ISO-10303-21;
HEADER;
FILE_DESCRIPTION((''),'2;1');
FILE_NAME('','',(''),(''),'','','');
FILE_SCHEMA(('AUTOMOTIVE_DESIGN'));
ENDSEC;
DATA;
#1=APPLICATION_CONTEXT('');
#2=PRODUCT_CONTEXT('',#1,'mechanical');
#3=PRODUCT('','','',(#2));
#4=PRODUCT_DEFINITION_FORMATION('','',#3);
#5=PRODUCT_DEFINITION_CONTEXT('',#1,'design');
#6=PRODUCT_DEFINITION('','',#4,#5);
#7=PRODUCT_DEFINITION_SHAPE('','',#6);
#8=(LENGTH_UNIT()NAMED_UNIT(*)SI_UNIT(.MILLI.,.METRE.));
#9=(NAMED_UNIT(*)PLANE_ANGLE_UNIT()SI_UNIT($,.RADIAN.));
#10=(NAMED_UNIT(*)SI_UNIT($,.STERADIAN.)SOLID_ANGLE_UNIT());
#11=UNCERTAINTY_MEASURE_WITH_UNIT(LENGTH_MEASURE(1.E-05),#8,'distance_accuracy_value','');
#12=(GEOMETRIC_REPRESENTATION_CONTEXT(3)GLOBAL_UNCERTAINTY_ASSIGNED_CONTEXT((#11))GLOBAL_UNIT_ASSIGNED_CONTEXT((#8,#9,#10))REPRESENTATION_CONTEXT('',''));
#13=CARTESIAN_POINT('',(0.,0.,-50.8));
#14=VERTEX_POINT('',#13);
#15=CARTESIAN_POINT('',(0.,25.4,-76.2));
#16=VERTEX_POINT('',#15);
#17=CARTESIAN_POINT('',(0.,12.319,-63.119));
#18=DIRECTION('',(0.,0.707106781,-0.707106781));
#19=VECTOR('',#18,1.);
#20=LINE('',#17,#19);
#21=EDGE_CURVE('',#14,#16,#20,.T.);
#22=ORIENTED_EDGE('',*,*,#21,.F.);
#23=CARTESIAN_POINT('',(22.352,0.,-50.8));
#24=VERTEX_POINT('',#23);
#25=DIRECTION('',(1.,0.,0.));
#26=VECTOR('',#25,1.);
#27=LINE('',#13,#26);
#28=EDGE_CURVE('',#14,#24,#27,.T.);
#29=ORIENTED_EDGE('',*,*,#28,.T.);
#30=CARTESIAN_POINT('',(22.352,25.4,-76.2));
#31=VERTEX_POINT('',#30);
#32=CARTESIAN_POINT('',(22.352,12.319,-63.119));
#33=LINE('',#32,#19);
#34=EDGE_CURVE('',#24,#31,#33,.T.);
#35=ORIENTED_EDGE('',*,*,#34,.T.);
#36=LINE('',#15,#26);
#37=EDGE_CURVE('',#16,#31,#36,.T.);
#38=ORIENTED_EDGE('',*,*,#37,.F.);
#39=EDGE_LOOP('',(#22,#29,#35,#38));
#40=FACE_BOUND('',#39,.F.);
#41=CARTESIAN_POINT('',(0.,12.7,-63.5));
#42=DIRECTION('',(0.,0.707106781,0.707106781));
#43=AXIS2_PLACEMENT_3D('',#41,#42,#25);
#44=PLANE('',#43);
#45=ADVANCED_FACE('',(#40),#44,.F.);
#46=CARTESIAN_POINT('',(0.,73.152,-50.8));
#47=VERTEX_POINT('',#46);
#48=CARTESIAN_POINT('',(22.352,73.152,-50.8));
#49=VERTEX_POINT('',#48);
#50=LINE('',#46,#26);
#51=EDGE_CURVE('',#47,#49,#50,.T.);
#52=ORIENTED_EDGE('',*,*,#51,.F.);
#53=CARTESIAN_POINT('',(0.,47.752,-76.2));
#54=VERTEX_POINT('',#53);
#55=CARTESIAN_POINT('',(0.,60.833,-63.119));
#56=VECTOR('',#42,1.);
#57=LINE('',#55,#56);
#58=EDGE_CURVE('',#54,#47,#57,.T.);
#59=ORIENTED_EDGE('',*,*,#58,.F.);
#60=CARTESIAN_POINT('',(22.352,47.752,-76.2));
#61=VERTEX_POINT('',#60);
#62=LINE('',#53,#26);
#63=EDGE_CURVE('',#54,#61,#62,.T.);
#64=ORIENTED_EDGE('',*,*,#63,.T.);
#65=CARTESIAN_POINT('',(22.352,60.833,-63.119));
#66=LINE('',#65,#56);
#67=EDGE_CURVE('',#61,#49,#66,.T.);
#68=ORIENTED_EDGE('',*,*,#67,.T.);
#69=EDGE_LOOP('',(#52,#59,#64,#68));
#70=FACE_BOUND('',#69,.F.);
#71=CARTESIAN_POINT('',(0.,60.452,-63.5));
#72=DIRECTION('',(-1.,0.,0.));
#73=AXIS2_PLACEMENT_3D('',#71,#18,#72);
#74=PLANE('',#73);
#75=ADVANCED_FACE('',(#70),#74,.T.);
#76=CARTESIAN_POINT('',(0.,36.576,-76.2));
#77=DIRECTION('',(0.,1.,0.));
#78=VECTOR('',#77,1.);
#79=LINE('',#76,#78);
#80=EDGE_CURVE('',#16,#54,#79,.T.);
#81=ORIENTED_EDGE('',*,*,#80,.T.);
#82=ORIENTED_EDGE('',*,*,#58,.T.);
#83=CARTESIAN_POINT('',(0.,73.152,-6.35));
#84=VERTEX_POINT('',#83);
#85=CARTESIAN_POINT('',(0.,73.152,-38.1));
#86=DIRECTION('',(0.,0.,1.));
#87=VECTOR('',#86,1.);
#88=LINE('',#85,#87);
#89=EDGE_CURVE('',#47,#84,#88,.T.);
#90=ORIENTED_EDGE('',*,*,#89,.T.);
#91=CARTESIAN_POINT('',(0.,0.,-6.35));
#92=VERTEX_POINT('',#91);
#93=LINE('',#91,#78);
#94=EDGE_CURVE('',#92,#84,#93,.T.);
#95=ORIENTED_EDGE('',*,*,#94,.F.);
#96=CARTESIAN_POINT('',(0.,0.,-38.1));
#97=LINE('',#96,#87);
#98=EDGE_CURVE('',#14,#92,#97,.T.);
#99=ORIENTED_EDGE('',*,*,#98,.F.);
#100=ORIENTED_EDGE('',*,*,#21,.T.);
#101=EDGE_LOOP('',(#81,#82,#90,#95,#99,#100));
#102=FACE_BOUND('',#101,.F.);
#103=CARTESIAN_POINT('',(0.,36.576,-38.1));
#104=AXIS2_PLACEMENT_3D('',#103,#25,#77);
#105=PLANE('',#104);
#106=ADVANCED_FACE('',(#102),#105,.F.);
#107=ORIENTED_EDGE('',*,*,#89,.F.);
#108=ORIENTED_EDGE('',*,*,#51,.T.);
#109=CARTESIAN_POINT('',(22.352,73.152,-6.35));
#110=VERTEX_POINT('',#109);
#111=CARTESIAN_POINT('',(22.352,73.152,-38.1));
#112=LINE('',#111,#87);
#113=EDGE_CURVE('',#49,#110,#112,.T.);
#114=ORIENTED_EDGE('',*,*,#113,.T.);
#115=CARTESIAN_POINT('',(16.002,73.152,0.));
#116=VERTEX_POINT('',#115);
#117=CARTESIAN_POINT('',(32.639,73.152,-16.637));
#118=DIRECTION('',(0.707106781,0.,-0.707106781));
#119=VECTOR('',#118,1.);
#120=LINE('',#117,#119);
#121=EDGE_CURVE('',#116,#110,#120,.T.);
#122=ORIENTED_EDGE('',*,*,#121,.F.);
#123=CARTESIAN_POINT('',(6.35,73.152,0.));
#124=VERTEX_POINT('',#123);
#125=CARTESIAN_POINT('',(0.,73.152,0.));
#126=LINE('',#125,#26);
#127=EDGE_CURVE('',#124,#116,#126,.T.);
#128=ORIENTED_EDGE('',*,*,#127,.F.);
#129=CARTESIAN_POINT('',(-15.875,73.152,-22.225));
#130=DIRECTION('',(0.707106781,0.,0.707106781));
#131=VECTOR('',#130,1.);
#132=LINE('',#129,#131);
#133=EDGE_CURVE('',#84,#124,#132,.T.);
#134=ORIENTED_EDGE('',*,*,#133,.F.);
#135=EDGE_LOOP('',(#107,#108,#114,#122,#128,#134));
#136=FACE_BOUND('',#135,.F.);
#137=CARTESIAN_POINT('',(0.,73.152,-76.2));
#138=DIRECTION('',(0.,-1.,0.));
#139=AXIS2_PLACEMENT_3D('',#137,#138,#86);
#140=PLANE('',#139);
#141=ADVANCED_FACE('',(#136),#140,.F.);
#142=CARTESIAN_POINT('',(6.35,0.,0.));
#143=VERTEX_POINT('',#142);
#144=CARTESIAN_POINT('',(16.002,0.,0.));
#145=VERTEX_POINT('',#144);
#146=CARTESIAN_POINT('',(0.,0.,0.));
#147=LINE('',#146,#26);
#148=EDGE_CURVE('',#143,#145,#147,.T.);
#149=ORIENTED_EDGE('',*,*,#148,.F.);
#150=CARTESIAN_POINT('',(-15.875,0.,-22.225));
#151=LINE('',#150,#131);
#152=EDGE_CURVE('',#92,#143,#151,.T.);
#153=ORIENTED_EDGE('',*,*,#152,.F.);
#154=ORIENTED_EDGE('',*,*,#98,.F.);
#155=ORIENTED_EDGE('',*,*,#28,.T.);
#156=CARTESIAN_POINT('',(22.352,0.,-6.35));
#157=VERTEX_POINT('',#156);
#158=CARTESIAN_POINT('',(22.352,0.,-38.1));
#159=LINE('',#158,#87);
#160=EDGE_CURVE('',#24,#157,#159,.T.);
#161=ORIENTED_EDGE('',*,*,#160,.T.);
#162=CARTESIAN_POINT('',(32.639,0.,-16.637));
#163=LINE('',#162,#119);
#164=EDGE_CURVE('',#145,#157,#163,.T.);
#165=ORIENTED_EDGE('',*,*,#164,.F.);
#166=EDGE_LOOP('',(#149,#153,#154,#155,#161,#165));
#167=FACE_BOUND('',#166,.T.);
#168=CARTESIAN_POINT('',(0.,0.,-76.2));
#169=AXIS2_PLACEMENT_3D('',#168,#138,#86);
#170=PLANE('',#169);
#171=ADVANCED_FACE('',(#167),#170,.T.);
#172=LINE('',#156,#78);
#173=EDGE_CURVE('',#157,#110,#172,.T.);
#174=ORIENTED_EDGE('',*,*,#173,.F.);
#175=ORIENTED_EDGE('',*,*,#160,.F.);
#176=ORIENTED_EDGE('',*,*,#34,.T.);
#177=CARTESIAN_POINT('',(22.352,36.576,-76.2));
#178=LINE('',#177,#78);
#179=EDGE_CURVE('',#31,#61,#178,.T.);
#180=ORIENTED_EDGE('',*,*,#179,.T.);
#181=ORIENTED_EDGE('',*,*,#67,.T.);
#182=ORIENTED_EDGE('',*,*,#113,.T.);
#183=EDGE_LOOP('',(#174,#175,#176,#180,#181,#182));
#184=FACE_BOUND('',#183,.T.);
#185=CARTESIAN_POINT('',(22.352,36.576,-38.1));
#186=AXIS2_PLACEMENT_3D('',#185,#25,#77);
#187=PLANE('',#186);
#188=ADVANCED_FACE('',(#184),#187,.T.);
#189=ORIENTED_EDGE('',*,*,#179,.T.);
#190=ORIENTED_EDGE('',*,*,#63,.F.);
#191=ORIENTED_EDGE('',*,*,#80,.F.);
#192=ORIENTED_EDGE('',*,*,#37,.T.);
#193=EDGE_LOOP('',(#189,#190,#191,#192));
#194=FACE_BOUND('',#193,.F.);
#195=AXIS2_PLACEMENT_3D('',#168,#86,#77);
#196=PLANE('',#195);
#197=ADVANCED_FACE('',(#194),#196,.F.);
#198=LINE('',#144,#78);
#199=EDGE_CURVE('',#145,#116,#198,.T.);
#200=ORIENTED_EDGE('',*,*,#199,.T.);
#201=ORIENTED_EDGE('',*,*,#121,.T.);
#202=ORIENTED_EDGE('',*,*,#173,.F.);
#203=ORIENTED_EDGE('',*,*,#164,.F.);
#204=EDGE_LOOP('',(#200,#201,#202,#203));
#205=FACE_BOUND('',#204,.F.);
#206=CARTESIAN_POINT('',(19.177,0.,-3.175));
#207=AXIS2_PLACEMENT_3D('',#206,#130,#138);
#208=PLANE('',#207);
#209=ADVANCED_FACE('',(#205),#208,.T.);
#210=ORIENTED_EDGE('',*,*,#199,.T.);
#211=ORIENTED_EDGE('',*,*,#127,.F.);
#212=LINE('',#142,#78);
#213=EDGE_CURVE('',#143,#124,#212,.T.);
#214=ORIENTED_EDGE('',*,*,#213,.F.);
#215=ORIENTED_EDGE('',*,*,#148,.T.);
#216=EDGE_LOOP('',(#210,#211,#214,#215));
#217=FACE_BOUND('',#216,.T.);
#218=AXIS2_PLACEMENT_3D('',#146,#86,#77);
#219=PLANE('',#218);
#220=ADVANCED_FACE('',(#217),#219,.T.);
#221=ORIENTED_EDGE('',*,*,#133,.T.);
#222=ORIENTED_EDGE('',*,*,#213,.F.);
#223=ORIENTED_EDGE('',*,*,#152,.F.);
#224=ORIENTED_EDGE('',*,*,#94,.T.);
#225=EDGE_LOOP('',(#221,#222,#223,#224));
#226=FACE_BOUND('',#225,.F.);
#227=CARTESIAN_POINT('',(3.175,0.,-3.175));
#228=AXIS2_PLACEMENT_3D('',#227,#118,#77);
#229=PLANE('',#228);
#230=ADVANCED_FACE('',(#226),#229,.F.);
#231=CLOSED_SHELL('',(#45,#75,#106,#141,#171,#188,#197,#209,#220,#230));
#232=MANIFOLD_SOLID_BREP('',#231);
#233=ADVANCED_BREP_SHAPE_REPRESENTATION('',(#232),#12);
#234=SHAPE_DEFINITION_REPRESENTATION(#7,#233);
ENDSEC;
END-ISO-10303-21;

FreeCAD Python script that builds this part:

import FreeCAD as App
import Part
import Sketcher

V = App.Vector
Q = App.Units.Quantity


def edges_at(feature, points):
    """Names of the edges that pass closest to the given points."""
    edges = feature.Shape.Edges
    near = lambda p: min(range(len(edges)), key=lambda i: edges[i].distToShape(Part.Vertex(*p))[0])
    return sorted({f"Edge{near(p) + 1}" for p in points})

doc = App.newDocument("Part")
body = doc.addObject("PartDesign::Body", "Body")

# Sketch on YZ plane
sketch1 = body.newObject("Sketcher::SketchObject", "Sketch")
sketch1.AttachmentSupport = (doc.getObject("YZ_Plane"), [""])
sketch1.MapMode = "FlatFace"
sketch1.addGeometry([
    Part.LineSegment(V(0, 0, 0), V(0, -76, 0)),
    Part.LineSegment(V(0, -76, 0), V(73, -76, 0)),
    Part.LineSegment(V(73, -76, 0), V(73, 0, 0)),
    Part.LineSegment(V(73, 0, 0), V(0, 0, 0)),
], False)
sketch1.addConstraint([
    Sketcher.Constraint("Coincident", 0, 2, 1, 1),
    Sketcher.Constraint("Coincident", 1, 2, 2, 1),
    Sketcher.Constraint("Coincident", 2, 2, 3, 1),
    Sketcher.Constraint("Coincident", 3, 2, 0, 1),
    Sketcher.Constraint("Vertical", 0),
    Sketcher.Constraint("Horizontal", 1),
    Sketcher.Constraint("Vertical", 2),
    Sketcher.Constraint("Horizontal", 3),
    Sketcher.Constraint("Coincident", 3, 2, -1, 1),
    Sketcher.Constraint("DistanceY", 0, 2, 0, 1, Q("3 in")),
    Sketcher.Constraint("DistanceX", 1, 1, 1, 2, Q("2.88 in")),
])
pad1 = body.newObject("PartDesign::Pad", "Pad")
pad1.Profile = sketch1
pad1.Length = Q("0.88 in")
doc.recompute()

chamfer = body.newObject("PartDesign::Chamfer", "Chamfer")
chamfer.Base = (pad1, edges_at(pad1, [(11.176, 0, -76.2), (11.176, 73.152, -76.2)]))
chamfer.Size = Q("1 in")
doc.recompute()

chamfer2 = body.newObject("PartDesign::Chamfer", "Chamfer001")
chamfer2.Base = (chamfer, edges_at(chamfer, [(0, 36.576, 0), (22.352, 36.576, 0)]))
chamfer2.Size = Q("0.25 in")

doc.recompute()
